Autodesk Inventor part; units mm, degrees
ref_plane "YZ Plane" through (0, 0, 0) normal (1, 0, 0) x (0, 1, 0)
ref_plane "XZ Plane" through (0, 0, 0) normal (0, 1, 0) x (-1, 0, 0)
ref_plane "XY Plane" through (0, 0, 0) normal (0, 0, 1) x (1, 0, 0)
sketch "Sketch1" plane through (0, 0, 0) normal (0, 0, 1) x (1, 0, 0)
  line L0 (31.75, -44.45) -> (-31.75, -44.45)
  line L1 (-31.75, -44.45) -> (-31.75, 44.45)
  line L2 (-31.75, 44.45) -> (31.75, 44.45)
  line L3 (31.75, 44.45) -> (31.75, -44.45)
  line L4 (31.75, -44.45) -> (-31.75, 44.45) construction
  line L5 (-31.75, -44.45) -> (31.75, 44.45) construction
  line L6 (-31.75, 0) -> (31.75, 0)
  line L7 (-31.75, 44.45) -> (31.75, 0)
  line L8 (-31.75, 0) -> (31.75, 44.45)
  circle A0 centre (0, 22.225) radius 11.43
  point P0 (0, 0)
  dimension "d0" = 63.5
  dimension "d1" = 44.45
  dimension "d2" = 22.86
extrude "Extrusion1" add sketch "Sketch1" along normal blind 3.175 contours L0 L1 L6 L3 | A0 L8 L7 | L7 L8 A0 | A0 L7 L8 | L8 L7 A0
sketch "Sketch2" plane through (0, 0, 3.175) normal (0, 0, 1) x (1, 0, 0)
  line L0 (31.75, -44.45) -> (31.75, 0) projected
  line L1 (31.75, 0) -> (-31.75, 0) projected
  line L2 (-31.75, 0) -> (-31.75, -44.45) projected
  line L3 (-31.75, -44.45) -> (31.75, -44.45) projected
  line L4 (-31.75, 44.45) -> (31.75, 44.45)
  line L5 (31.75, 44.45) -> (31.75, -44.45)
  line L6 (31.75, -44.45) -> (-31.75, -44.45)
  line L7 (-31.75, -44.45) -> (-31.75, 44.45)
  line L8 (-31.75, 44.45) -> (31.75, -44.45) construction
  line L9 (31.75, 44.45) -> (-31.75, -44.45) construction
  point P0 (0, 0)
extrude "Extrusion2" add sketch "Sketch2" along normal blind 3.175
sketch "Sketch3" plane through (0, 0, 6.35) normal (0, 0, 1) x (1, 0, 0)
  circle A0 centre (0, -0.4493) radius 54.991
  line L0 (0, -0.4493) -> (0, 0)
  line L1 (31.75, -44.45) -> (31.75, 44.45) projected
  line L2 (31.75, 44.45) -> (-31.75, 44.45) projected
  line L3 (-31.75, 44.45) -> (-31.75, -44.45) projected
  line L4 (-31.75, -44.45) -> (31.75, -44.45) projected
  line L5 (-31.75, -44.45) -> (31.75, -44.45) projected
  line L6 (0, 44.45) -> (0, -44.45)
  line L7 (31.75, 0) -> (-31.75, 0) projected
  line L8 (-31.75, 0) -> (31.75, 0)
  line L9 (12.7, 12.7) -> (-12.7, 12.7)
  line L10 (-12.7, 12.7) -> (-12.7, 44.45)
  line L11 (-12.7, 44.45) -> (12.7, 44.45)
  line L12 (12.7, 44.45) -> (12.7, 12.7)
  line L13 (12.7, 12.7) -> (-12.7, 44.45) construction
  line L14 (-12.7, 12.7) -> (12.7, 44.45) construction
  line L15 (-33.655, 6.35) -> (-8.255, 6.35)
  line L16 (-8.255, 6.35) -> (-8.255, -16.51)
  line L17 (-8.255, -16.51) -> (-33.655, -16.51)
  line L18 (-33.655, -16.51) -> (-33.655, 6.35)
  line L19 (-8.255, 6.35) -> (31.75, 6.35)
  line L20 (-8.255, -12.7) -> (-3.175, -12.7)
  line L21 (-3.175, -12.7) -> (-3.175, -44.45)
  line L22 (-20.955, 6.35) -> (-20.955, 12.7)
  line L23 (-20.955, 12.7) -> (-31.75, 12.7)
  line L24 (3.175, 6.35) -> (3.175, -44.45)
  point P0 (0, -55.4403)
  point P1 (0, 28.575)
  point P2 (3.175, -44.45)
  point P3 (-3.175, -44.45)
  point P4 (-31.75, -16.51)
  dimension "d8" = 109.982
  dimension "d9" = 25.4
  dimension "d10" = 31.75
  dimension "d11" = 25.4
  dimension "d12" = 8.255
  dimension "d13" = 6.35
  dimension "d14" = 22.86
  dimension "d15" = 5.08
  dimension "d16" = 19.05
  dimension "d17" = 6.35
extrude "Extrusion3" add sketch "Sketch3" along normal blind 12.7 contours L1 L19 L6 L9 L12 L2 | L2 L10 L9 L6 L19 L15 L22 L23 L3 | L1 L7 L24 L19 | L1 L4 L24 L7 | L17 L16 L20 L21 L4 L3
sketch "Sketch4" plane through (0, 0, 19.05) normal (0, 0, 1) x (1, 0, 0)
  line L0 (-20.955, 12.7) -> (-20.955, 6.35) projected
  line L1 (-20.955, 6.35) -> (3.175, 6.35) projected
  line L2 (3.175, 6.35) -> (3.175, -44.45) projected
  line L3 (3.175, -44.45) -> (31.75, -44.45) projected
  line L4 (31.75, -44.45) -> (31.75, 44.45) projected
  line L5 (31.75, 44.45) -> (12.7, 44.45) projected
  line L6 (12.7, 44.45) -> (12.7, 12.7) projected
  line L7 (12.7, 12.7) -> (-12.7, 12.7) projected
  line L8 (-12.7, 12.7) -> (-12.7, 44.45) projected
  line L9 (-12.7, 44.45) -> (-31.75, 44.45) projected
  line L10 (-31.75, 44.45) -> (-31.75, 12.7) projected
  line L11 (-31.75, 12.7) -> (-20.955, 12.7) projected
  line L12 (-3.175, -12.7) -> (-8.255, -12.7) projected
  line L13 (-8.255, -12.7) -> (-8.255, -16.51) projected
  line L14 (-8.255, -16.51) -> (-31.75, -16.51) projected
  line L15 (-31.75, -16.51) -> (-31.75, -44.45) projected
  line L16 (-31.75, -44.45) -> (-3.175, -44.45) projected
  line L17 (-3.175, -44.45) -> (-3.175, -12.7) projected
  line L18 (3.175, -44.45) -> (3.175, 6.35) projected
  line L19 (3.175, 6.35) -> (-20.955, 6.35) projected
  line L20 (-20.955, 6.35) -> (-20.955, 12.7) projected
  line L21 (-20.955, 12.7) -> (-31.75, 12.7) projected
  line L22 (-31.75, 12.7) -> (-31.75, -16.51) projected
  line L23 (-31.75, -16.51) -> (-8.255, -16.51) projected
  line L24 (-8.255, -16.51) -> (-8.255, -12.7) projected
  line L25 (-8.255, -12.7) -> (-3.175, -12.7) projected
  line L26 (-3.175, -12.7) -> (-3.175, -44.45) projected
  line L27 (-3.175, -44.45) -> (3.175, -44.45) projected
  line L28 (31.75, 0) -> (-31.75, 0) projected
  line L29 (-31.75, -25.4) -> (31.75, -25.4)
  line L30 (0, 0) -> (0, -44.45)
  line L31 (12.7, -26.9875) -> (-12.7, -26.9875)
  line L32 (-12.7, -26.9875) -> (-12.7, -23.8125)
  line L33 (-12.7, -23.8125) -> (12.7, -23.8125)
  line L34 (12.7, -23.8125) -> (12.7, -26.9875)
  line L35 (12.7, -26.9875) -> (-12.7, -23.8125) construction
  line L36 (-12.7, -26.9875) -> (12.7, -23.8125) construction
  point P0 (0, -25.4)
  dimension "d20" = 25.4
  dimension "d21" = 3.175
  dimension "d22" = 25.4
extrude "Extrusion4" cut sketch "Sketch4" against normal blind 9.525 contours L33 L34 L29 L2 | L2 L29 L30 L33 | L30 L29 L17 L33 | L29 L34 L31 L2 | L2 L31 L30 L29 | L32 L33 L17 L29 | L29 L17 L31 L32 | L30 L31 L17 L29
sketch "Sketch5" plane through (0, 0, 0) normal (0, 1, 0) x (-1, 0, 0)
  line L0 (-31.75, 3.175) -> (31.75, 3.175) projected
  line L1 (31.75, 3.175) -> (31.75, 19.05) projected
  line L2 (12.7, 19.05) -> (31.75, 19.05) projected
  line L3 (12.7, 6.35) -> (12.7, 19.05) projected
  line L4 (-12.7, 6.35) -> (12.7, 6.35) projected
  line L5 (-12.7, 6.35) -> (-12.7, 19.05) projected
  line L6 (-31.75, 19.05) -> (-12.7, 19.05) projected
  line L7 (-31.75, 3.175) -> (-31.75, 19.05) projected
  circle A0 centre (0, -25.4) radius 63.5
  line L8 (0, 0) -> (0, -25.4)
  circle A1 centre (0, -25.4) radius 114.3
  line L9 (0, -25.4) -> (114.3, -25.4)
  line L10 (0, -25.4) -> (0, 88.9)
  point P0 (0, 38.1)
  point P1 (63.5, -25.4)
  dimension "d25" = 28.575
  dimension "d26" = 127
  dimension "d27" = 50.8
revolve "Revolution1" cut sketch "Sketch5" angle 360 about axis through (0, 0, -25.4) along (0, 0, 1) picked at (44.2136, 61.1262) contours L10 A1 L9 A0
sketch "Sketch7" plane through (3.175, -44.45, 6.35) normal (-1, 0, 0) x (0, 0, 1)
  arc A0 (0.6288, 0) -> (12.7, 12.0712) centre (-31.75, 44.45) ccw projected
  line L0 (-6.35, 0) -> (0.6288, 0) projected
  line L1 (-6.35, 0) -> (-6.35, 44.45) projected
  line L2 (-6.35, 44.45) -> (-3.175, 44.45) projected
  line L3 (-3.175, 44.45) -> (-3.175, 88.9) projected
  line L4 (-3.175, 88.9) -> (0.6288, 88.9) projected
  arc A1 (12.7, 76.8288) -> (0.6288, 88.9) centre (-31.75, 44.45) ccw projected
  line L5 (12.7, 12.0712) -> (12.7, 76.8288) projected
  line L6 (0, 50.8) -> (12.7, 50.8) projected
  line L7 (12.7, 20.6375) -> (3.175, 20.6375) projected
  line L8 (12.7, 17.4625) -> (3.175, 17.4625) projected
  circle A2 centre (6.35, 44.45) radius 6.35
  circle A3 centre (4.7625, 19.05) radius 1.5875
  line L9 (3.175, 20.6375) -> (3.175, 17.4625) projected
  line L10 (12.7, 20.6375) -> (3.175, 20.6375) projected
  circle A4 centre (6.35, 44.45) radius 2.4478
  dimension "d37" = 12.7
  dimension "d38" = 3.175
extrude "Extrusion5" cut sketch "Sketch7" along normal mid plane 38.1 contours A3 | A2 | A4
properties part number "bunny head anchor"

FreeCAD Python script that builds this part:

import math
import FreeCAD as App
import Part
import Sketcher
from FreeCAD import Vector
Q = App.Units.Quantity

doc = App.newDocument("Part")
body = doc.addObject("PartDesign::Body", "Body")
body.AllowCompound = True

# Sketch on XY plane
sketch1 = doc.addObject("Sketcher::SketchObject", "Sketch")
body.addObject(sketch1)
sketch1.AttachmentSupport = (doc.XY_Plane, [""])
sketch1.MapMode = "FlatFace"
sketch1.addGeometry([
    Part.LineSegment(Vector(-32, -44, 0), Vector(32, -44, 0)),  # 0
    Part.LineSegment(Vector(32, -44, 0), Vector(32, 0, 0)),  # 1
    Part.LineSegment(Vector(32, 0, 0), Vector(-32, 0, 0)),  # 2
    Part.LineSegment(Vector(-32, 0, 0), Vector(-32, -44, 0)),  # 3
    Part.Circle(Vector(0, 22, 0), Vector(0, 0, 1), 11),  # 4
], False)
sketch1.addConstraint([
    Sketcher.Constraint("Coincident", 0, 2, 1, 1),
    Sketcher.Constraint("Coincident", 1, 2, 2, 1),
    Sketcher.Constraint("Coincident", 2, 2, 3, 1),
    Sketcher.Constraint("Coincident", 3, 2, 0, 1),
    Sketcher.Constraint("Horizontal", 0),
    Sketcher.Constraint("Vertical", 1),
    Sketcher.Constraint("Horizontal", 2),
    Sketcher.Constraint("Vertical", 3),
    Sketcher.Constraint("Symmetric", 1, 2, 2, 2, -1, 1),
    Sketcher.Constraint("PointOnObject", 4, 3, -2),
    Sketcher.Constraint("Diameter", 4, Q("0.9 in")),
    Sketcher.Constraint("DistanceX", 0, 1, 0, 2, Q("2.5 in")),
    Sketcher.Constraint("DistanceY", 1, 1, 1, 2, Q("1.75 in")),
    Sketcher.Constraint("DistanceY", -1, 1, 4, 3, Q("0.875 in")),
])
pad1 = doc.addObject("PartDesign::Pad", "Pad")
body.addObject(pad1)
pad1.Profile = sketch1
pad1.Length = Q("0.125 in")

# Sketch on XY plane
sketch2 = doc.addObject("Sketcher::SketchObject", "Sketch001")
body.addObject(sketch2)
sketch2.AttachmentSupport = (doc.XY_Plane, [""])
sketch2.MapMode = "FlatFace"
sketch2.AttachmentOffset = App.Placement(Vector(0, 0, 0.125 * 25.4), App.Rotation())
sketch2.addGeometry([
    Part.LineSegment(Vector(-32, -44, 0), Vector(32, -44, 0)),
    Part.LineSegment(Vector(32, -44, 0), Vector(32, 44, 0)),
    Part.LineSegment(Vector(32, 44, 0), Vector(-32, 44, 0)),
    Part.LineSegment(Vector(-32, 44, 0), Vector(-32, -44, 0)),
], False)
sketch2.addConstraint([
    Sketcher.Constraint("Coincident", 0, 2, 1, 1),
    Sketcher.Constraint("Coincident", 1, 2, 2, 1),
    Sketcher.Constraint("Coincident", 2, 2, 3, 1),
    Sketcher.Constraint("Coincident", 3, 2, 0, 1),
    Sketcher.Constraint("Horizontal", 0),
    Sketcher.Constraint("Vertical", 1),
    Sketcher.Constraint("Horizontal", 2),
    Sketcher.Constraint("Vertical", 3),
    Sketcher.Constraint("Symmetric", 0, 2, 2, 2, -1, 1),
    Sketcher.Constraint("DistanceX", 0, 1, 0, 2, Q("2.5 in")),
    Sketcher.Constraint("DistanceY", 1, 1, 1, 2, Q("3.5 in")),
])
pad2 = doc.addObject("PartDesign::Pad", "Pad001")
body.addObject(pad2)
pad2.Profile = sketch2
pad2.Length = Q("0.125 in")

# Sketch on XY plane
sketch3 = doc.addObject("Sketcher::SketchObject", "Sketch002")
body.addObject(sketch3)
sketch3.AttachmentSupport = (doc.XY_Plane, [""])
sketch3.MapMode = "FlatFace"
sketch3.AttachmentOffset = App.Placement(Vector(0, 0, 0.25 * 25.4), App.Rotation())
sketch3.addGeometry([
    Part.LineSegment(Vector(31.8, 44.5, 0), Vector(12.7, 44.5, 0)),  # 0
    Part.LineSegment(Vector(12.7, 44.5, 0), Vector(12.7, 12.7, 0)),  # 1
    Part.LineSegment(Vector(12.7, 12.7, 0), Vector(-12.7, 12.7, 0)),  # 2
    Part.LineSegment(Vector(-12.7, 12.7, 0), Vector(-12.7, 44.5, 0)),  # 3
    Part.LineSegment(Vector(-12.7, 44.5, 0), Vector(-31.8, 44.5, 0)),  # 4
    Part.LineSegment(Vector(-31.8, 44.5, 0), Vector(-31.8, 12.7, 0)),  # 5
    Part.LineSegment(Vector(-31.8, 12.7, 0), Vector(-21, 12.7, 0)),  # 6
    Part.LineSegment(Vector(-21, 12.7, 0), Vector(-21, 6.3, 0)),  # 7
    Part.LineSegment(Vector(-21, 6.3, 0), Vector(3.2, 6.3, 0)),  # 8
    Part.LineSegment(Vector(3.2, 6.3, 0), Vector(3.2, -44.5, 0)),  # 9
    Part.LineSegment(Vector(3.2, -44.5, 0), Vector(31.8, -44.5, 0)),  # 10
    Part.LineSegment(Vector(31.8, -44.5, 0), Vector(31.8, 44.5, 0)),  # 11
    Part.LineSegment(Vector(-8.3, -16.5, 0), Vector(-31.8, -16.5, 0)),  # 12
    Part.LineSegment(Vector(-31.8, -16.5, 0), Vector(-31.8, -44.5, 0)),  # 13
    Part.LineSegment(Vector(-31.8, -44.5, 0), Vector(-3.2, -44.5, 0)),  # 14
    Part.LineSegment(Vector(-3.2, -44.5, 0), Vector(-3.2, -12.7, 0)),  # 15
    Part.LineSegment(Vector(-3.2, -12.7, 0), Vector(-8.3, -12.7, 0)),  # 16
    Part.LineSegment(Vector(-8.3, -12.7, 0), Vector(-8.3, -16.5, 0)),  # 17
], False)
sketch3.addConstraint([
    Sketcher.Constraint("Coincident", 0, 2, 1, 1),
    Sketcher.Constraint("Coincident", 1, 2, 2, 1),
    Sketcher.Constraint("Coincident", 2, 2, 3, 1),
    Sketcher.Constraint("Coincident", 3, 2, 4, 1),
    Sketcher.Constraint("Coincident", 4, 2, 5, 1),
    Sketcher.Constraint("Coincident", 5, 2, 6, 1),
    Sketcher.Constraint("Coincident", 6, 2, 7, 1),
    Sketcher.Constraint("Coincident", 7, 2, 8, 1),
    Sketcher.Constraint("Coincident", 8, 2, 9, 1),
    Sketcher.Constraint("Coincident", 9, 2, 10, 1),
    Sketcher.Constraint("Coincident", 10, 2, 11, 1),
    Sketcher.Constraint("Coincident", 11, 2, 0, 1),
    Sketcher.Constraint("Coincident", 12, 2, 13, 1),
    Sketcher.Constraint("Coincident", 13, 2, 14, 1),
    Sketcher.Constraint("Coincident", 14, 2, 15, 1),
    Sketcher.Constraint("Coincident", 15, 2, 16, 1),
    Sketcher.Constraint("Coincident", 16, 2, 17, 1),
    Sketcher.Constraint("Coincident", 17, 2, 12, 1),
    Sketcher.Constraint("Horizontal", 0),
    Sketcher.Constraint("Vertical", 1),
    Sketcher.Constraint("Horizontal", 2),
    Sketcher.Constraint("Vertical", 3),
    Sketcher.Constraint("Horizontal", 4),
    Sketcher.Constraint("Vertical", 5),
    Sketcher.Constraint("Horizontal", 6),
    Sketcher.Constraint("Vertical", 7),
    Sketcher.Constraint("Horizontal", 8),
    Sketcher.Constraint("Vertical", 9),
    Sketcher.Constraint("Horizontal", 10),
    Sketcher.Constraint("Vertical", 11),
    Sketcher.Constraint("Horizontal", 12),
    Sketcher.Constraint("Vertical", 13),
    Sketcher.Constraint("Horizontal", 14),
    Sketcher.Constraint("Vertical", 15),
    Sketcher.Constraint("Horizontal", 16),
    Sketcher.Constraint("Vertical", 17),
    Sketcher.Constraint("Symmetric", 4, 2, 10, 2, -1, 1),
    Sketcher.Constraint("Symmetric", 11, 2, 13, 2, -1, 1),
    Sketcher.Constraint("Symmetric", 0, 2, 3, 2, -2),
    Sketcher.Constraint("Horizontal", 2, 2, 5, 2),
    Sketcher.Constraint("Equal", 10, 14),
    Sketcher.Constraint("Equal", 5, 15),
    Sketcher.Constraint("DistanceX", 2, 2, 2, 1, Q("1 in")),
    Sketcher.Constraint("DistanceX", 16, 2, 16, 1, Q("0.2 in")),
    Sketcher.Constraint("DistanceY", 15, 2, 2, 2, Q("1 in")),
    Sketcher.Constraint("DistanceX", 0, 2, 0, 1, Q("0.75 in")),
    Sketcher.Constraint("DistanceY", 1, 2, 1, 1, Q("1.25 in")),
    Sketcher.Constraint("DistanceY", 7, 2, 7, 1, Q("0.25 in")),
    Sketcher.Constraint("DistanceY", 12, 2, 7, 2, Q("0.9 in")),
    Sketcher.Constraint("DistanceX", 14, 2, 9, 2, Q("0.25 in")),
    Sketcher.Constraint("DistanceX", 6, 2, 2, 2, Q("0.325 in")),
])
pad3 = doc.addObject("PartDesign::Pad", "Pad002")
body.addObject(pad3)
pad3.Profile = sketch3
pad3.Length = Q("0.5 in")

# Sketch on XY plane
sketch4 = doc.addObject("Sketcher::SketchObject", "Sketch003")
body.addObject(sketch4)
sketch4.AttachmentSupport = (doc.XY_Plane, [""])
sketch4.MapMode = "FlatFace"
sketch4.AttachmentOffset = App.Placement(Vector(0, 0, 0.75 * 25.4), App.Rotation())
sketch4.addGeometry([
    Part.LineSegment(Vector(12.7, -23.8, 0), Vector(-12.7, -23.8, 0)),
    Part.LineSegment(Vector(-12.7, -23.8, 0), Vector(-12.7, -27, 0)),
    Part.LineSegment(Vector(-12.7, -27, 0), Vector(12.7, -27, 0)),
    Part.LineSegment(Vector(12.7, -27, 0), Vector(12.7, -23.8, 0)),
], False)
sketch4.addConstraint([
    Sketcher.Constraint("Coincident", 0, 2, 1, 1),
    Sketcher.Constraint("Coincident", 1, 2, 2, 1),
    Sketcher.Constraint("Coincident", 2, 2, 3, 1),
    Sketcher.Constraint("Coincident", 3, 2, 0, 1),
    Sketcher.Constraint("Horizontal", 0),
    Sketcher.Constraint("Vertical", 1),
    Sketcher.Constraint("Horizontal", 2),
    Sketcher.Constraint("Vertical", 3),
    Sketcher.Constraint("DistanceX", 0, 2, 0, 1, Q("1 in")),
    Sketcher.Constraint("DistanceY", 1, 2, 1, 1, Q("0.125 in")),
    Sketcher.Constraint("DistanceX", 0, 2, -1, 1, Q("0.5 in")),
    Sketcher.Constraint("DistanceY", 0, 2, -1, 1, Q("0.9375 in")),
])
pocket1 = doc.addObject("PartDesign::Pocket", "Pocket")
body.addObject(pocket1)
pocket1.Profile = sketch4
pocket1.Length = Q("0.375 in")

# Sketch on XZ plane
sketch5 = doc.addObject("Sketcher::SketchObject", "Sketch004")
body.addObject(sketch5)
sketch5.AttachmentSupport = (doc.XZ_Plane, [""])
sketch5.MapMode = "FlatFace"
sketch5.addGeometry([
    Part.LineSegment(Vector(0, 89, 0), Vector(0, 38, 0)),
    Part.ArcOfCircle(Part.Circle(Vector(0, -25, 0), Vector(0, 0, 1), 64), math.radians(90), math.radians(180)),
    Part.LineSegment(Vector(-64, -25, 0), Vector(-114, -25, 0)),
    Part.ArcOfCircle(Part.Circle(Vector(0, -25, 0), Vector(0, 0, 1), 114), math.radians(90), math.radians(180)),
], False)
sketch5.addConstraint([
    Sketcher.Constraint("Coincident", 0, 2, 1, 1),
    Sketcher.Constraint("Coincident", 1, 2, 2, 1),
    Sketcher.Constraint("Coincident", 2, 2, 3, 2),
    Sketcher.Constraint("Coincident", 3, 1, 0, 1),
    Sketcher.Constraint("Vertical", 0),
    Sketcher.Constraint("Horizontal", 2),
    Sketcher.Constraint("Coincident", 3, 3, 1, 3),
    Sketcher.Constraint("PointOnObject", 1, 3, -2),
    Sketcher.Constraint("PointOnObject", 0, 2, -2),
    Sketcher.Constraint("Horizontal", 3, 3, 1, 2),
    Sketcher.Constraint("Radius", 1, Q("2.5 in")),
    Sketcher.Constraint("DistanceX", 2, 2, 2, 1, Q("2 in")),
    Sketcher.Constraint("DistanceY", 1, 3, -1, 1, Q("1 in")),
])
groove = doc.addObject("PartDesign::Groove", "Groove")
body.addObject(groove)
groove.Profile = sketch5
groove.ReferenceAxis = (sketch5, ["V_Axis"])
groove.Angle = 360

# Sketch on YZ plane
sketch6 = doc.addObject("Sketcher::SketchObject", "Sketch005")
body.addObject(sketch6)
sketch6.AttachmentSupport = (doc.YZ_Plane, [""])
sketch6.MapMode = "FlatFace"
sketch6.AttachmentOffset = App.Placement(Vector(0, 0, 0.125 * 25.4), App.Rotation())
sketch6.addGeometry([
    Part.Circle(Vector(-25.4, 11.1, 0), Vector(0, 0, 1), 1.6),
    Part.Circle(Vector(0, 12.7, 0), Vector(0, 0, 1), 6.3),
], False)
sketch6.addConstraint([
    Sketcher.Constraint("PointOnObject", 1, 3, -2),
    Sketcher.Constraint("Diameter", 1, Q("0.5 in")),
    Sketcher.Constraint("Diameter", 0, Q("0.125 in")),
    Sketcher.Constraint("DistanceY", -1, 1, 1, 3, Q("0.5 in")),
    Sketcher.Constraint("DistanceX", 0, 3, -1, 1, Q("1 in")),
    Sketcher.Constraint("DistanceY", -1, 1, 0, 3, Q("0.4375 in")),
])
pocket2 = doc.addObject("PartDesign::Pocket", "Pocket001")
body.addObject(pocket2)
pocket2.Profile = sketch6
pocket2.Length = Q("1.5 in")
pocket2.Midplane = True

doc.recompute()
